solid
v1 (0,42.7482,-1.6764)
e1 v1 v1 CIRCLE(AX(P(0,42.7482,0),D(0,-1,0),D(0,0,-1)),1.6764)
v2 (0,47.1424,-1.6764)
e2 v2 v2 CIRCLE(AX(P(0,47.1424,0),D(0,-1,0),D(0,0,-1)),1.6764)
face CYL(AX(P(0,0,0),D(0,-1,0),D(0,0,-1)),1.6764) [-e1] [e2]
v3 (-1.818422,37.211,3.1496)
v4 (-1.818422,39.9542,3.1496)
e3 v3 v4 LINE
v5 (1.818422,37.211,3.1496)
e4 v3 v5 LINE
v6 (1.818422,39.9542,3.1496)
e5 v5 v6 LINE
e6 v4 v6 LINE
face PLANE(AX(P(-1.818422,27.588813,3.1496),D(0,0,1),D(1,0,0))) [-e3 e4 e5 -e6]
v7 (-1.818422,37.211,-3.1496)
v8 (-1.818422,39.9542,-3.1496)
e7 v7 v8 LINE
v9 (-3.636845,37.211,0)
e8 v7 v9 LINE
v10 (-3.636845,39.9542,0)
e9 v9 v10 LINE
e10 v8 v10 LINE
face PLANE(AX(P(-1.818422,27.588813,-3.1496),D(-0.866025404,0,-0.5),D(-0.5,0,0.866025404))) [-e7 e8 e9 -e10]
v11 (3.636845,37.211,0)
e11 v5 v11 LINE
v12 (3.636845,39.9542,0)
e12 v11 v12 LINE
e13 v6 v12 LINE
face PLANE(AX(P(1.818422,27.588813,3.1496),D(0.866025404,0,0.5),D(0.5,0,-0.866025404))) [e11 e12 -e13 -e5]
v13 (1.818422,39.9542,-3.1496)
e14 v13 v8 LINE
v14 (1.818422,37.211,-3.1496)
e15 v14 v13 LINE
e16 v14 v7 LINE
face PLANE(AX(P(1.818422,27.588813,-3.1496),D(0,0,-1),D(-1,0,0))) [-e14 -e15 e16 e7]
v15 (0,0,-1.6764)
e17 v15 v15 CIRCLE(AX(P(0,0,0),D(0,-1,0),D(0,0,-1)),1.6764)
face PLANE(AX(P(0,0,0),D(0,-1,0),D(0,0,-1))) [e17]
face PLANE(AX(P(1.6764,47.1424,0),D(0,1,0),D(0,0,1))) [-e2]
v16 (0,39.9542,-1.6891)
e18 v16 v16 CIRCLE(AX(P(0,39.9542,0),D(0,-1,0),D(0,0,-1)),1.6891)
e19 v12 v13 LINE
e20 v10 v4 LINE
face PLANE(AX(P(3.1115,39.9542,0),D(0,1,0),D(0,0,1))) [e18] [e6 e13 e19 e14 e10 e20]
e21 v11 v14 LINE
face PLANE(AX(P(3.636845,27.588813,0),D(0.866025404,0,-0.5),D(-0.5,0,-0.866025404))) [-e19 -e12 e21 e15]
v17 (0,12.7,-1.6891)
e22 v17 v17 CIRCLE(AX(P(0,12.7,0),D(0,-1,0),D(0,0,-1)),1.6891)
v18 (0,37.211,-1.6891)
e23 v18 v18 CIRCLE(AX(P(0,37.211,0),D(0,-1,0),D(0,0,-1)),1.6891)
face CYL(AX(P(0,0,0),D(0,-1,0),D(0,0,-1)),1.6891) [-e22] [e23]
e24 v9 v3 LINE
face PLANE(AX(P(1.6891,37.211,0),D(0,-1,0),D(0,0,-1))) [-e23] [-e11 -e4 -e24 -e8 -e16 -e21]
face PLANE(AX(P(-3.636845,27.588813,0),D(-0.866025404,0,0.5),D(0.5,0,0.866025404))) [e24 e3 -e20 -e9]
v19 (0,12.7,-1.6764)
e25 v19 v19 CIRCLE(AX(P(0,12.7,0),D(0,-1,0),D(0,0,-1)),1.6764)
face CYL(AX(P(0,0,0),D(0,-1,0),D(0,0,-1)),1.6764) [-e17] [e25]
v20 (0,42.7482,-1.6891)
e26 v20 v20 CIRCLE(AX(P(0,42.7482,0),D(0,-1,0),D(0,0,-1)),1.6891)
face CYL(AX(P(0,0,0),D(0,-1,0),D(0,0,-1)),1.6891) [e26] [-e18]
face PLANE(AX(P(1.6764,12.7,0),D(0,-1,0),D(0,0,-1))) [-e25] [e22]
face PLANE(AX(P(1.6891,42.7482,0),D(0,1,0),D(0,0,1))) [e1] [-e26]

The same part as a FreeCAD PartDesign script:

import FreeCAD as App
import Part
import Sketcher
from FreeCAD import Vector
Q = App.Units.Quantity


def add_polygon(sketch, points):
    """Adds a closed chain of lines whose ends are joined by coincident constraints."""
    first, n = sketch.GeometryCount, len(points)
    for a, b in zip(points, points[1:] + points[:1]):
        sketch.addGeometry(Part.LineSegment(App.Vector(*a, 0), App.Vector(*b, 0)), False)
    for i in range(n):
        sketch.addConstraint(Sketcher.Constraint("Coincident", first + i, 2, first + (i + 1) % n, 1))

doc = App.newDocument("Part")
body = doc.addObject("PartDesign::Body", "Body")

# Sketch on XY plane
sketch1 = body.newObject("Sketcher::SketchObject", "Sketch")
sketch1.AttachmentSupport = (doc.getObject("XY_Plane"), [""])
sketch1.MapMode = "FlatFace"
add_polygon(sketch1, [(0, 0), (1.676, 0), (1.676, 12.7), (1.689, 12.7), (1.689, 37.211), (3.111, 37.211), (3.111, 39.954), (1.689, 39.954), (1.689, 42.748), (1.676, 42.748), (1.676, 47.142), (0, 47.142)])  # lines 0-11
sketch1.addConstraint(Sketcher.Constraint("Horizontal", 0))
sketch1.addConstraint(Sketcher.Constraint("Vertical", 1))
sketch1.addConstraint(Sketcher.Constraint("Horizontal", 2))
sketch1.addConstraint(Sketcher.Constraint("Vertical", 3))
sketch1.addConstraint(Sketcher.Constraint("Horizontal", 4))
sketch1.addConstraint(Sketcher.Constraint("Vertical", 5))
sketch1.addConstraint(Sketcher.Constraint("Horizontal", 6))
sketch1.addConstraint(Sketcher.Constraint("Vertical", 7))
sketch1.addConstraint(Sketcher.Constraint("Horizontal", 8))
sketch1.addConstraint(Sketcher.Constraint("Vertical", 9))
sketch1.addConstraint(Sketcher.Constraint("Horizontal", 10))
sketch1.addConstraint(Sketcher.Constraint("Vertical", 11))
sketch1.addConstraint(Sketcher.Constraint("Coincident", 11, 2, -1, 1))
sketch1.addConstraint(Sketcher.Constraint("Vertical", 3, 2, 6, 2))
sketch1.addConstraint(Sketcher.Constraint("Vertical", 1, 2, 8, 2))
sketch1.addConstraint(Sketcher.Constraint("DistanceY", 1, 1, 1, 2, Q("0.5 in")))
sketch1.addConstraint(Sketcher.Constraint("DistanceY", 7, 1, 7, 2, Q("0.11 in")))
sketch1.addConstraint(Sketcher.Constraint("DistanceX", 0, 1, 0, 2, Q("0.066 in")))
sketch1.addConstraint(Sketcher.Constraint("DistanceX", 4, 1, 4, 2, Q("0.056 in")))
sketch1.addConstraint(Sketcher.Constraint("DistanceY", 3, 1, 3, 2, Q("0.965 in")))
sketch1.addConstraint(Sketcher.Constraint("DistanceY", 5, 1, 5, 2, Q("0.108 in")))
sketch1.addConstraint(Sketcher.Constraint("DistanceY", 9, 1, 9, 2, Q("0.173 in")))
sketch1.addConstraint(Sketcher.Constraint("DistanceX", 2, 1, 2, 2, Q("0.0005 in")))
revolution = body.newObject("PartDesign::Revolution", "Revolution")
revolution.Profile = sketch1
revolution.ReferenceAxis = (sketch1, ["V_Axis"])
revolution.Angle = 360

# Sketch on XZ plane
sketch2 = body.newObject("Sketcher::SketchObject", "Sketch001")
sketch2.AttachmentSupport = (doc.getObject("XZ_Plane"), [""])
sketch2.MapMode = "FlatFace"
sketch2.AttachmentOffset = App.Placement(Vector(0, 0, -1.573 * 25.4), App.Rotation())
add_polygon(sketch2, [(3.6, 0), (1.8, -3.1), (-1.8, -3.1), (-3.6, 0), (-1.8, 3.1), (1.8, 3.1)])  # lines 0-5
sketch2.addConstraint(Sketcher.Constraint("Horizontal", 1))
sketch2.addConstraint(Sketcher.Constraint("Horizontal", 4))
sketch2.addConstraint(Sketcher.Constraint("Symmetric", 0, 2, 3, 2, -1, 1))
sketch2.addConstraint(Sketcher.Constraint("Symmetric", 2, 2, 5, 2, -1, 1))
sketch2.addConstraint(Sketcher.Constraint("PointOnObject", 2, 2, -1))
sketch2.addConstraint(Sketcher.Constraint("Parallel", 2, 5))
sketch2.addConstraint(Sketcher.Constraint("Vertical", 1, 2, 3, 2))
sketch2.addConstraint(Sketcher.Constraint("Angle", 0, Q("-120 deg")))
sketch2.addConstraint(Sketcher.Constraint("DistanceY", 0, 2, -1, 1, Q("0.124 in")))
sketch2.addConstraint(Sketcher.Constraint("DistanceX", 1, 2, 1, 1, Q("3.636845 mm")))
pad1 = body.newObject("PartDesign::Pad", "Pad")
pad1.Profile = sketch2
pad1.Length = Q("0.108 in")

doc.recompute()
